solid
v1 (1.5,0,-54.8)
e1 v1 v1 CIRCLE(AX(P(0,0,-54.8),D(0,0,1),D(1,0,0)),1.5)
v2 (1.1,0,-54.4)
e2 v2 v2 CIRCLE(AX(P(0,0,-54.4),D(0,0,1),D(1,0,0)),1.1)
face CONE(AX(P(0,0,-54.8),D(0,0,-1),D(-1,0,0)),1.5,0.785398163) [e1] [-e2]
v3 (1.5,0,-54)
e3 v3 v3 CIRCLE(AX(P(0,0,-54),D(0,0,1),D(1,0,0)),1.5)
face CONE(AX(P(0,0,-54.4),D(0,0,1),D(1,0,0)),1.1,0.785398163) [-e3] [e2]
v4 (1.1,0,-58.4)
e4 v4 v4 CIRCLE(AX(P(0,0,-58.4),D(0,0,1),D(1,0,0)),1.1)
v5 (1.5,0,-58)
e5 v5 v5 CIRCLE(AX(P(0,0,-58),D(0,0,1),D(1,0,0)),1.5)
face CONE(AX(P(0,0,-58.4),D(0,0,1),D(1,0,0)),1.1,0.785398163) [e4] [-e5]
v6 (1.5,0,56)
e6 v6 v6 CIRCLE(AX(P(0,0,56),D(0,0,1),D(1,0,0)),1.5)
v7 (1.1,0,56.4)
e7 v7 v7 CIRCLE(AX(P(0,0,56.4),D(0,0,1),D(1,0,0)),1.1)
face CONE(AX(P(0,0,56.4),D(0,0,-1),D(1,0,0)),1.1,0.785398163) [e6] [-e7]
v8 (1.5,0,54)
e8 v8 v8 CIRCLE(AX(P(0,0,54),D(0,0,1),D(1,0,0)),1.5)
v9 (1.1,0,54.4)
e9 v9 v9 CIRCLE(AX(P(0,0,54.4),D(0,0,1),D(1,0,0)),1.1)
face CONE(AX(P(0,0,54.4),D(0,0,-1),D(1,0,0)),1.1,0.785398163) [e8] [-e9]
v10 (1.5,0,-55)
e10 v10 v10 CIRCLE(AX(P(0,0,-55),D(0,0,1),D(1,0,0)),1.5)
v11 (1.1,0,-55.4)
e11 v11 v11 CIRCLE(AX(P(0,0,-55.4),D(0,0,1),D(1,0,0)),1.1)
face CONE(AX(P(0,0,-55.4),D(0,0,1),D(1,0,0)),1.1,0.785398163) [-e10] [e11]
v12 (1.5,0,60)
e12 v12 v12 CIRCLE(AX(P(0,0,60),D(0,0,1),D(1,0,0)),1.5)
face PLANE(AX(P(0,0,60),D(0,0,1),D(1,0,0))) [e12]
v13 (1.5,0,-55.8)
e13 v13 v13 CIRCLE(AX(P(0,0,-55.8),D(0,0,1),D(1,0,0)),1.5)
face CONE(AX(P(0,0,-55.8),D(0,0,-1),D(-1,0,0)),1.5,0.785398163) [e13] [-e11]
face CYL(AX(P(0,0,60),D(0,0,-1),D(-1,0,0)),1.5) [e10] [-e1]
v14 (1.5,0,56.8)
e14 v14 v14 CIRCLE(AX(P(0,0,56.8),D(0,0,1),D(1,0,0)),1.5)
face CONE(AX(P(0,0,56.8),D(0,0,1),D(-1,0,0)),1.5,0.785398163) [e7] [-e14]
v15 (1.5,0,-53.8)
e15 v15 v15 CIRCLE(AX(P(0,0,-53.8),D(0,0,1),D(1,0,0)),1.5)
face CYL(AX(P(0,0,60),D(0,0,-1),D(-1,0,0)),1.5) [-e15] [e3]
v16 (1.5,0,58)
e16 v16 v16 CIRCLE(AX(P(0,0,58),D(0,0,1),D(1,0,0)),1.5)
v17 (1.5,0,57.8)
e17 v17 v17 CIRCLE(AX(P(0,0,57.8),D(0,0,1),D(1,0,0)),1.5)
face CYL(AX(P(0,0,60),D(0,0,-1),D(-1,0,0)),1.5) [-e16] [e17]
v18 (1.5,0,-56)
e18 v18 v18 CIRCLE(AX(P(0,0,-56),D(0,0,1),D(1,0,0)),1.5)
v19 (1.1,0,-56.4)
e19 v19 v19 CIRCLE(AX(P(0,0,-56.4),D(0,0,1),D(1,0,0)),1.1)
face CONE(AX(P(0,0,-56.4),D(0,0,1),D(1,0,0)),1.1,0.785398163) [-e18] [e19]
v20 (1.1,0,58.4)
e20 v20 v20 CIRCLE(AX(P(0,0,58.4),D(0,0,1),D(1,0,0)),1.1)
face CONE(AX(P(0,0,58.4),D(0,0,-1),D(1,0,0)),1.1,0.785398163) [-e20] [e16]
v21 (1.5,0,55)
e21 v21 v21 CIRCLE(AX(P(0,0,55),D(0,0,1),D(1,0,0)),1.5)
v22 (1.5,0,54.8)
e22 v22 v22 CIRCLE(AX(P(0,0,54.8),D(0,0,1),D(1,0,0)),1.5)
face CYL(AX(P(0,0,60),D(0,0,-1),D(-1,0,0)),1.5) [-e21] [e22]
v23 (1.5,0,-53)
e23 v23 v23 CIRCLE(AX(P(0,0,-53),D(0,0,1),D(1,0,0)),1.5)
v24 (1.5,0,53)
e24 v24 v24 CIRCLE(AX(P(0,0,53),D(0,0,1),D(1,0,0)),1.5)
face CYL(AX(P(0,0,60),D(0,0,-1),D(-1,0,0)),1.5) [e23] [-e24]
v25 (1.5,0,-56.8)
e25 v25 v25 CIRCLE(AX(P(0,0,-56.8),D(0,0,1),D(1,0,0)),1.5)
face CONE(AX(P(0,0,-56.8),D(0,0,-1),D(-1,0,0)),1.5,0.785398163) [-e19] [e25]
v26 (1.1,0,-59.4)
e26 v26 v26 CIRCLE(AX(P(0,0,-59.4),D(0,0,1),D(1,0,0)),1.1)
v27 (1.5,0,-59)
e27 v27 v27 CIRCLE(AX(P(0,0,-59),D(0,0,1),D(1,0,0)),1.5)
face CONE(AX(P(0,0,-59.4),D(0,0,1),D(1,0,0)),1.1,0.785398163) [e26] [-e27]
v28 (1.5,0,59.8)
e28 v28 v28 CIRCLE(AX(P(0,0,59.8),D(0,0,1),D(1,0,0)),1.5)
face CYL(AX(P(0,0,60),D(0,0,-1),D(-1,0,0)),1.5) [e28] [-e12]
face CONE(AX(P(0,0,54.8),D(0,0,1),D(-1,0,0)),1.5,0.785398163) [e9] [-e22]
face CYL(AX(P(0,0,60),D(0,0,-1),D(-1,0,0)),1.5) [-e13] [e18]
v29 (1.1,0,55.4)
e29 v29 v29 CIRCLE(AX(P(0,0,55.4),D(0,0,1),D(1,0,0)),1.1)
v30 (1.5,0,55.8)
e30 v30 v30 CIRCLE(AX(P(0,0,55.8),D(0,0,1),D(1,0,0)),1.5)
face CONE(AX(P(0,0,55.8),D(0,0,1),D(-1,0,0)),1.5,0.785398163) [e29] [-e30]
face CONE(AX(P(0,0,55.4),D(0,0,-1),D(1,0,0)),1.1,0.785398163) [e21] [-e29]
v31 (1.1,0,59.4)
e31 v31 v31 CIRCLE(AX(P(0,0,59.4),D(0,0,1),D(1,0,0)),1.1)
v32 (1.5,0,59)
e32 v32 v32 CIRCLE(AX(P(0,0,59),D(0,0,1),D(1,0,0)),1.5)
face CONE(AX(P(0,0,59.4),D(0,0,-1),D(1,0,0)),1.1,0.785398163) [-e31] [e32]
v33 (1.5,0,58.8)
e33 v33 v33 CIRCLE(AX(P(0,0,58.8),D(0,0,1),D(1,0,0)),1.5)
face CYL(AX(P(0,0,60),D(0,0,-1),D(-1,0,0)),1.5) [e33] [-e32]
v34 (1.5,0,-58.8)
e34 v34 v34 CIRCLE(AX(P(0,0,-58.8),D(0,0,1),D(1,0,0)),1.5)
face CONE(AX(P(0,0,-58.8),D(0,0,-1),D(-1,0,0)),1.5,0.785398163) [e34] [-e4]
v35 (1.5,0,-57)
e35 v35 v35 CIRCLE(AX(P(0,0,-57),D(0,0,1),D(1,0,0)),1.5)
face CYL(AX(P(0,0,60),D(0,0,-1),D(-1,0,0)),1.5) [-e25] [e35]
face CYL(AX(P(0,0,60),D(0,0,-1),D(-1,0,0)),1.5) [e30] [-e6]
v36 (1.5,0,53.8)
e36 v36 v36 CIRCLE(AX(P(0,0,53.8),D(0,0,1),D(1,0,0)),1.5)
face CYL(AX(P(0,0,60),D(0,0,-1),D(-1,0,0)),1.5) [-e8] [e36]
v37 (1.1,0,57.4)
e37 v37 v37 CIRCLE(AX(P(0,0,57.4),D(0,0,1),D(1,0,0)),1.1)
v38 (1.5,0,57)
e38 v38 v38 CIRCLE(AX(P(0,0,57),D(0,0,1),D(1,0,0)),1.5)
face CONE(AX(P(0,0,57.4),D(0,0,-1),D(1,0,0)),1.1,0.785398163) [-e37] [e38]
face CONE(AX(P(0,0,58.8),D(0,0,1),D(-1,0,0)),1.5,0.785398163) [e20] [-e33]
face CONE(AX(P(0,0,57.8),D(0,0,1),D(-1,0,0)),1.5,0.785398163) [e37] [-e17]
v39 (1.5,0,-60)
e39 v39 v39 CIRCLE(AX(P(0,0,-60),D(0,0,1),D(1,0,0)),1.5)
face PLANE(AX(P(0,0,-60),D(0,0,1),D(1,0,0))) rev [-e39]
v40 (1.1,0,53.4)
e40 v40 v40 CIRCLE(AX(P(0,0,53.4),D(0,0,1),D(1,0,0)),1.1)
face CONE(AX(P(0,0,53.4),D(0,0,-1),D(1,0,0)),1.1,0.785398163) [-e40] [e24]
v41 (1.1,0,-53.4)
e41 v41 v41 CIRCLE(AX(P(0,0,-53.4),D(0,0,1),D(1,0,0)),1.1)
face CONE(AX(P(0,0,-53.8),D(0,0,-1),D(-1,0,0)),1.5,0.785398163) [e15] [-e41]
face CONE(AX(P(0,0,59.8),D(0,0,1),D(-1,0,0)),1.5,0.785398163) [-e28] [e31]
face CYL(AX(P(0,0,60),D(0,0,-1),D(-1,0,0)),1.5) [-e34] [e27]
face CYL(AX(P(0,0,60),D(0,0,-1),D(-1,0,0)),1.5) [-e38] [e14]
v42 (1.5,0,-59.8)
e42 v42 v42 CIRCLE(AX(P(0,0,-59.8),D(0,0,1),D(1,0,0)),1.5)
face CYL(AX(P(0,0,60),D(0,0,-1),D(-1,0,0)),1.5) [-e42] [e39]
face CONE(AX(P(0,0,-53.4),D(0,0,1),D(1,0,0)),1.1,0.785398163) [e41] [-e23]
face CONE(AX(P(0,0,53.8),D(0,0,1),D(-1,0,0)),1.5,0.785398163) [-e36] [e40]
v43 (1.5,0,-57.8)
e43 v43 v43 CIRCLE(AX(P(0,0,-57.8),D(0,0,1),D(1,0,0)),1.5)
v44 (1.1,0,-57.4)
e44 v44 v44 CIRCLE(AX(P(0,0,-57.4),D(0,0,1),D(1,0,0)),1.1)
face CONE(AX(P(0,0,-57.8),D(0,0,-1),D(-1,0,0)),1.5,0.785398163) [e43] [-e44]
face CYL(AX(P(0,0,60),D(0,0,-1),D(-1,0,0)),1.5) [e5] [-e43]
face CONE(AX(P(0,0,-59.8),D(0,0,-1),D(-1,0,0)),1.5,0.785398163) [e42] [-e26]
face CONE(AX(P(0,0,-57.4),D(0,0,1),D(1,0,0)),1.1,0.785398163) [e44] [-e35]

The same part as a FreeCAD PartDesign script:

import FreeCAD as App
import Part
import Sketcher
from FreeCAD import Vector


def add_polygon(sketch, points):
    """Adds a closed chain of lines whose ends are joined by coincident constraints."""
    first, n = sketch.GeometryCount, len(points)
    for a, b in zip(points, points[1:] + points[:1]):
        sketch.addGeometry(Part.LineSegment(App.Vector(*a, 0), App.Vector(*b, 0)), False)
    for i in range(n):
        sketch.addConstraint(Sketcher.Constraint("Coincident", first + i, 2, first + (i + 1) % n, 1))

doc = App.newDocument("Part")
body = doc.addObject("PartDesign::Body", "Body")

# Sketch on XY plane
sketch1 = body.newObject("Sketcher::SketchObject", "Sketch")
sketch1.AttachmentSupport = (doc.getObject("XY_Plane"), [""])
sketch1.MapMode = "FlatFace"
sketch1.addGeometry(Part.Circle(Vector(0, 0, 0), Vector(0, 0, 1), 1.5), False)
sketch1.addConstraint([
    Sketcher.Constraint("Coincident", 0, 3, -1, 1),
    Sketcher.Constraint("Diameter", 0, 3.0),
])
pad1 = body.newObject("PartDesign::Pad", "Pad")
pad1.Profile = sketch1
pad1.Length = 120
pad1.Midplane = True

# Sketch on YZ plane
sketch2 = body.newObject("Sketcher::SketchObject", "Sketch001")
sketch2.AttachmentSupport = (doc.getObject("YZ_Plane"), [""])
sketch2.MapMode = "FlatFace"
add_polygon(sketch2, [(-1.5, -59.8), (-1.1, -59.4), (-1.5, -59), (-1.898251, -59), (-1.898251, -59.8)])  # lines 0-4
sketch2.addConstraint([
    Sketcher.Constraint("Horizontal", 2),
    Sketcher.Constraint("Vertical", 3),
    Sketcher.Constraint("Horizontal", 4),
    Sketcher.Constraint("Perpendicular", 0, 1),
    Sketcher.Constraint("Vertical", 1, 2, 4, 2),
    Sketcher.Constraint("Equal", 0, 1),
    Sketcher.Constraint("DistanceY", 3, 2, 3, 1, 0.8),
    Sketcher.Constraint("DistanceY", 1, 2, -1, 1, 59.0),
    Sketcher.Constraint("DistanceX", 0, 2, -1, 1, 1.1),
    Sketcher.Constraint("DistanceX", 2, 2, 2, 1, 0.398251),
])
groove = body.newObject("PartDesign::Groove", "Groove")
groove.Profile = sketch2
groove.ReferenceAxis = (sketch2, ["V_Axis"])
groove.Angle = 360
doc.recompute()

linearpattern = body.newObject("PartDesign::LinearPattern", "LinearPattern")
linearpattern.Originals = [groove]
linearpattern.Direction = (doc.getObject("Z_Axis"), [""])
linearpattern.Mode = "offset"
linearpattern.Offset = 1
linearpattern.Occurrences = 7
body.Tip = linearpattern
doc.recompute()

mirrored = body.newObject("PartDesign::Mirrored", "Mirrored")
mirrored.Originals = [groove]
mirrored.MirrorPlane = (doc.getObject("XY_Plane"), [""])
body.Tip = mirrored

# Sketch on YZ plane
sketch3 = body.newObject("Sketcher::SketchObject", "Sketch002")
sketch3.AttachmentSupport = (doc.getObject("YZ_Plane"), [""])
sketch3.MapMode = "FlatFace"
add_polygon(sketch3, [(-1.1, 58.4), (-1.5, 58.8), (-1.898251, 58.8), (-1.898251, 58), (-1.5, 58)])  # lines 0-4
sketch3.addConstraint([
    Sketcher.Constraint("Horizontal", 1),
    Sketcher.Constraint("Vertical", 2),
    Sketcher.Constraint("Horizontal", 3),
    Sketcher.Constraint("Perpendicular", 0, 4),
    Sketcher.Constraint("Vertical", 0, 2, 3, 2),
    Sketcher.Constraint("Equal", 0, 4),
    Sketcher.Constraint("DistanceY", 2, 2, 2, 1, 0.8),
    Sketcher.Constraint("DistanceY", -1, 1, 2, 2, 58.0),
    Sketcher.Constraint("DistanceX", 0, 2, -1, 1, 1.5),
    Sketcher.Constraint("DistanceX", 1, 2, 1, 1, 0.398251),
])
groove2 = body.newObject("PartDesign::Groove", "Groove001")
groove2.Profile = sketch3
groove2.ReferenceAxis = (sketch3, ["V_Axis"])
groove2.Angle = 360

# Sketch on YZ plane
sketch4 = body.newObject("Sketcher::SketchObject", "Sketch003")
sketch4.AttachmentSupport = (doc.getObject("YZ_Plane"), [""])
sketch4.MapMode = "FlatFace"
add_polygon(sketch4, [(-1.1, 57.4), (-1.5, 57.8), (-1.898251, 57.8), (-1.898251, 57), (-1.5, 57)])  # lines 0-4
sketch4.addConstraint([
    Sketcher.Constraint("Horizontal", 1),
    Sketcher.Constraint("Vertical", 2),
    Sketcher.Constraint("Horizontal", 3),
    Sketcher.Constraint("Perpendicular", 0, 4),
    Sketcher.Constraint("Vertical", 0, 2, 3, 2),
    Sketcher.Constraint("Equal", 0, 4),
    Sketcher.Constraint("DistanceY", 2, 2, 2, 1, 0.8),
    Sketcher.Constraint("DistanceY", -1, 1, 2, 2, 57.0),
    Sketcher.Constraint("DistanceX", 0, 2, -1, 1, 1.5),
    Sketcher.Constraint("DistanceX", 1, 2, 1, 1, 0.398251),
])
groove3 = body.newObject("PartDesign::Groove", "Groove002")
groove3.Profile = sketch4
groove3.ReferenceAxis = (sketch4, ["V_Axis"])
groove3.Angle = 360

# Sketch on YZ plane
sketch5 = body.newObject("Sketcher::SketchObject", "Sketch004")
sketch5.AttachmentSupport = (doc.getObject("YZ_Plane"), [""])
sketch5.MapMode = "FlatFace"
add_polygon(sketch5, [(-1.1, 56.4), (-1.5, 56.8), (-1.898251, 56.8), (-1.898251, 56), (-1.5, 56)])  # lines 0-4
sketch5.addConstraint([
    Sketcher.Constraint("Horizontal", 1),
    Sketcher.Constraint("Vertical", 2),
    Sketcher.Constraint("Horizontal", 3),
    Sketcher.Constraint("Perpendicular", 0, 4),
    Sketcher.Constraint("Vertical", 0, 2, 3, 2),
    Sketcher.Constraint("Equal", 0, 4),
    Sketcher.Constraint("DistanceY", 2, 2, 2, 1, 0.8),
    Sketcher.Constraint("DistanceY", -1, 1, 2, 2, 56.0),
    Sketcher.Constraint("DistanceX", 0, 2, -1, 1, 1.5),
    Sketcher.Constraint("DistanceX", 1, 2, 1, 1, 0.398251),
])
groove4 = body.newObject("PartDesign::Groove", "Groove003")
groove4.Profile = sketch5
groove4.ReferenceAxis = (sketch5, ["V_Axis"])
groove4.Angle = 360

# Sketch on YZ plane
sketch6 = body.newObject("Sketcher::SketchObject", "Sketch005")
sketch6.AttachmentSupport = (doc.getObject("YZ_Plane"), [""])
sketch6.MapMode = "FlatFace"
add_polygon(sketch6, [(-1.1, 55.4), (-1.5, 55.8), (-1.898251, 55.8), (-1.898251, 55), (-1.5, 55)])  # lines 0-4
sketch6.addConstraint([
    Sketcher.Constraint("Horizontal", 1),
    Sketcher.Constraint("Vertical", 2),
    Sketcher.Constraint("Horizontal", 3),
    Sketcher.Constraint("Perpendicular", 0, 4),
    Sketcher.Constraint("Vertical", 0, 2, 3, 2),
    Sketcher.Constraint("Equal", 0, 4),
    Sketcher.Constraint("DistanceY", 2, 2, 2, 1, 0.8),
    Sketcher.Constraint("DistanceY", -1, 1, 2, 2, 55.0),
    Sketcher.Constraint("DistanceX", 0, 2, -1, 1, 1.5),
    Sketcher.Constraint("DistanceX", 1, 2, 1, 1, 0.398251),
])
groove5 = body.newObject("PartDesign::Groove", "Groove004")
groove5.Profile = sketch6
groove5.ReferenceAxis = (sketch6, ["V_Axis"])
groove5.Angle = 360

# Sketch on YZ plane
sketch7 = body.newObject("Sketcher::SketchObject", "Sketch006")
sketch7.AttachmentSupport = (doc.getObject("YZ_Plane"), [""])
sketch7.MapMode = "FlatFace"
add_polygon(sketch7, [(-1.1, 54.4), (-1.5, 54.8), (-1.898251, 54.8), (-1.898251, 54), (-1.5, 54)])  # lines 0-4
sketch7.addConstraint([
    Sketcher.Constraint("Horizontal", 1),
    Sketcher.Constraint("Vertical", 2),
    Sketcher.Constraint("Horizontal", 3),
    Sketcher.Constraint("Perpendicular", 0, 4),
    Sketcher.Constraint("Vertical", 0, 2, 3, 2),
    Sketcher.Constraint("Equal", 0, 4),
    Sketcher.Constraint("DistanceY", 2, 2, 2, 1, 0.8),
    Sketcher.Constraint("DistanceY", -1, 1, 2, 2, 54.0),
    Sketcher.Constraint("DistanceX", 0, 2, -1, 1, 1.5),
    Sketcher.Constraint("DistanceX", 1, 2, 1, 1, 0.398251),
])
groove6 = body.newObject("PartDesign::Groove", "Groove005")
groove6.Profile = sketch7
groove6.ReferenceAxis = (sketch7, ["V_Axis"])
groove6.Angle = 360

# Sketch on YZ plane
sketch8 = body.newObject("Sketcher::SketchObject", "Sketch007")
sketch8.AttachmentSupport = (doc.getObject("YZ_Plane"), [""])
sketch8.MapMode = "FlatFace"
add_polygon(sketch8, [(-1.1, 53.4), (-1.5, 53.8), (-1.898251, 53.8), (-1.898251, 53), (-1.5, 53)])  # lines 0-4
sketch8.addConstraint([
    Sketcher.Constraint("Horizontal", 1),
    Sketcher.Constraint("Vertical", 2),
    Sketcher.Constraint("Horizontal", 3),
    Sketcher.Constraint("Perpendicular", 0, 4),
    Sketcher.Constraint("Vertical", 0, 2, 3, 2),
    Sketcher.Constraint("Equal", 0, 4),
    Sketcher.Constraint("DistanceY", 2, 2, 2, 1, 0.8),
    Sketcher.Constraint("DistanceY", -1, 1, 2, 2, 53.0),
    Sketcher.Constraint("DistanceX", 0, 2, -1, 1, 1.5),
    Sketcher.Constraint("DistanceX", 1, 2, 1, 1, 0.398251),
])
groove7 = body.newObject("PartDesign::Groove", "Groove006")
groove7.Profile = sketch8
groove7.ReferenceAxis = (sketch8, ["V_Axis"])
groove7.Angle = 360

doc.recompute()
